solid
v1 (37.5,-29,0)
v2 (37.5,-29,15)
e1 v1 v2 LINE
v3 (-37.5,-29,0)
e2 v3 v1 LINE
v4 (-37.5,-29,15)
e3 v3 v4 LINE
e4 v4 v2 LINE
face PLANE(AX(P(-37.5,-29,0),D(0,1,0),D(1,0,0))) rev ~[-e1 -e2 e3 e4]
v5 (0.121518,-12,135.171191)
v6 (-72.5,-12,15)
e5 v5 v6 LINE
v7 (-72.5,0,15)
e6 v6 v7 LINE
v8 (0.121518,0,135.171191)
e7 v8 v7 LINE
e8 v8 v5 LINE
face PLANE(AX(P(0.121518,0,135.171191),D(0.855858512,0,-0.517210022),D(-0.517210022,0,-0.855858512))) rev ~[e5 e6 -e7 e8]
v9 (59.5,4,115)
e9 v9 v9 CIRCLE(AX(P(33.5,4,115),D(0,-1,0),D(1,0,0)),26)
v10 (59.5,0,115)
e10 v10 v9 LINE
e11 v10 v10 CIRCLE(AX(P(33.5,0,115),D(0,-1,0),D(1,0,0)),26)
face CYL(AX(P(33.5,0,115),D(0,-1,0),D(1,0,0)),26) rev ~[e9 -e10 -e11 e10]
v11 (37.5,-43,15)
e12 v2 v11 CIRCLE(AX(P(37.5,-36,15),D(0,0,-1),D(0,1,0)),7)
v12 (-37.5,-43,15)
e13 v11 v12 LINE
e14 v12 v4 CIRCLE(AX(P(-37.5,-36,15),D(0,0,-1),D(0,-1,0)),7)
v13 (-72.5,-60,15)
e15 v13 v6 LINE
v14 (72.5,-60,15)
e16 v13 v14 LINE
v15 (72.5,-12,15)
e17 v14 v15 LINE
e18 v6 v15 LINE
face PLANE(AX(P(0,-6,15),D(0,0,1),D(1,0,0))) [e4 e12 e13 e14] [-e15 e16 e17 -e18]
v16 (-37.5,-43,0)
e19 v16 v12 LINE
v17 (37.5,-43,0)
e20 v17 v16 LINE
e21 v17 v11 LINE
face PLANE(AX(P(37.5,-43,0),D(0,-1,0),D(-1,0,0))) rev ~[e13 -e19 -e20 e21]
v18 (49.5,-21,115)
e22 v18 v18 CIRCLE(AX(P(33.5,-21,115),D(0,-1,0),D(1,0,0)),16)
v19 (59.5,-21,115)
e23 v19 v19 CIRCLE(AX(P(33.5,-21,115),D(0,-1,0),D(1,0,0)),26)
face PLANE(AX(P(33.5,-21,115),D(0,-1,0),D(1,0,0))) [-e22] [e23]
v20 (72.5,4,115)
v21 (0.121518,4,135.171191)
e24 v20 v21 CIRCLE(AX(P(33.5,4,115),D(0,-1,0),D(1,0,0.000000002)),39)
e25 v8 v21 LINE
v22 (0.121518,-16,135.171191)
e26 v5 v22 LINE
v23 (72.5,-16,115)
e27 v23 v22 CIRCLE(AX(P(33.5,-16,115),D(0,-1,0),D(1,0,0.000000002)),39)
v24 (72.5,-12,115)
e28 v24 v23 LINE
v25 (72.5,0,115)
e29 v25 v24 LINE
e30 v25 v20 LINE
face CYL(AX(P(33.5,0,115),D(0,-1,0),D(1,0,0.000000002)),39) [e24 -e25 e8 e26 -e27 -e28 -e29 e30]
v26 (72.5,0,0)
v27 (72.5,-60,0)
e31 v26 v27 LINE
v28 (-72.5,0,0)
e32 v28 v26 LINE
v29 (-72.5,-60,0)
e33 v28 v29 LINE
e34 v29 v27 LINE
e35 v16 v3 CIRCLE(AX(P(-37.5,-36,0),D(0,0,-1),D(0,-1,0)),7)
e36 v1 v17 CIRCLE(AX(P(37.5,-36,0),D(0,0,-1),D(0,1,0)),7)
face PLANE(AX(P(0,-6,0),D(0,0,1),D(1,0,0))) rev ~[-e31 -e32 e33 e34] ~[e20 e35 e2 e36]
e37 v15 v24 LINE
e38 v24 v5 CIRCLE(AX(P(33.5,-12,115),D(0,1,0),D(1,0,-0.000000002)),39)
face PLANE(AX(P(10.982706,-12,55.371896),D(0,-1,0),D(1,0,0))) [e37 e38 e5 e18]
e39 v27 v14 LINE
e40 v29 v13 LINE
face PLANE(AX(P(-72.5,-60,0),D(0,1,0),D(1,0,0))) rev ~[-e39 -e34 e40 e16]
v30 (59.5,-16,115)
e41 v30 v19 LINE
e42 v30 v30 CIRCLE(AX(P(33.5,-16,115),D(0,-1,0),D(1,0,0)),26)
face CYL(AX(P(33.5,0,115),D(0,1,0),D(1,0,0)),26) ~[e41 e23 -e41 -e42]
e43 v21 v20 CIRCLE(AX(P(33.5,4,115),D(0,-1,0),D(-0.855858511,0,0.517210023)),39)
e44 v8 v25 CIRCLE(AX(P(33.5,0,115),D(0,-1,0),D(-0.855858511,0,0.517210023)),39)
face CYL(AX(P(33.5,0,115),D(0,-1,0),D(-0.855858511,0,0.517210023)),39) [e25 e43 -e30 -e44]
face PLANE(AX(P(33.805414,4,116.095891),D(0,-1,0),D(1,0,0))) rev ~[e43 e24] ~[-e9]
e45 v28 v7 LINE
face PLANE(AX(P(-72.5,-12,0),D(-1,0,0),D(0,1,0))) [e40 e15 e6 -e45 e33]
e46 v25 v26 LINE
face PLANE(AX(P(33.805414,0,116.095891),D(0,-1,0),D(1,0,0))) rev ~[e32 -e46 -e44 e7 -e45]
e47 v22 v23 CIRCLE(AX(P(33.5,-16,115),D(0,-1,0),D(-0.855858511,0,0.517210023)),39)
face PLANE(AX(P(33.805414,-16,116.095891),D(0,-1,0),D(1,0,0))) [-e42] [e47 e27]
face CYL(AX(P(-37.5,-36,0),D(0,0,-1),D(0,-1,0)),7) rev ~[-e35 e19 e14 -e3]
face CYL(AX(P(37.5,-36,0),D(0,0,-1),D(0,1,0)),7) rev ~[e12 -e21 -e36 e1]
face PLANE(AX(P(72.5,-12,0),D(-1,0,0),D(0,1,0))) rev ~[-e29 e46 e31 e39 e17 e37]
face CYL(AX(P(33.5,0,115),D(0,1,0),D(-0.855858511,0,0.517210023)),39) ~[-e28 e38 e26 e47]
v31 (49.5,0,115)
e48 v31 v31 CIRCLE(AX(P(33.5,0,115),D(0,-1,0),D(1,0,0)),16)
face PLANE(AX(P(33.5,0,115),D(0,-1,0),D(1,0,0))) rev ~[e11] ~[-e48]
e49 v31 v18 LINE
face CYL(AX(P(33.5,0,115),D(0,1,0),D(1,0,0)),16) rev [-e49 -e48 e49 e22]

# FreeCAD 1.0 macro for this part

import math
import FreeCAD as App
import Part
import Sketcher
Q = App.Units.Quantity


def add_polygon(sketch, points):
    """Adds a closed chain of lines whose ends are joined by coincident constraints."""
    first, n = sketch.GeometryCount, len(points)
    for a, b in zip(points, points[1:] + points[:1]):
        sketch.addGeometry(Part.LineSegment(App.Vector(*a, 0), App.Vector(*b, 0)), False)
    for i in range(n):
        sketch.addConstraint(Sketcher.Constraint("Coincident", first + i, 2, first + (i + 1) % n, 1))

doc = App.newDocument("Part")
body = doc.addObject("PartDesign::Body", "Body")

# Sketch on XY plane
sketch1 = body.newObject("Sketcher::SketchObject", "Sketch")
sketch1.AttachmentSupport = (doc.getObject("XY_Plane"), [""])
sketch1.MapMode = "FlatFace"
add_polygon(sketch1, [(-72.5, -12), (-72.5, -60), (72.5, -60), (72.5, -12)])  # lines 0-3
sketch1.addGeometry(Part.LineSegment(App.Vector(37.5, -43, 0), App.Vector(-37.5, -43, 0)), False)  # 4
sketch1.addGeometry(Part.ArcOfCircle(Part.Circle(App.Vector(-37.5, -36, 0), App.Vector(0, 0, 1), 7), math.radians(90), math.radians(270)), False)  # 5
sketch1.addGeometry(Part.LineSegment(App.Vector(-37.5, -29, 0), App.Vector(37.5, -29, 0)), False)  # 6
sketch1.addGeometry(Part.ArcOfCircle(Part.Circle(App.Vector(37.5, -36, 0), App.Vector(0, 0, 1), 7), math.radians(-90), math.radians(90)), False)  # 7
sketch1.addConstraint(Sketcher.Constraint("Tangent", 4, 2, 5, 2))
sketch1.addConstraint(Sketcher.Constraint("Tangent", 5, 1, 6, 1))
sketch1.addConstraint(Sketcher.Constraint("Tangent", 6, 2, 7, 2))
sketch1.addConstraint(Sketcher.Constraint("Tangent", 7, 1, 4, 1))
sketch1.addConstraint(Sketcher.Constraint("Vertical", 0))
sketch1.addConstraint(Sketcher.Constraint("Horizontal", 1))
sketch1.addConstraint(Sketcher.Constraint("Vertical", 2))
sketch1.addConstraint(Sketcher.Constraint("Horizontal", 3))
sketch1.addConstraint(Sketcher.Constraint("Horizontal", 4))
sketch1.addConstraint(Sketcher.Constraint("Horizontal", 6))
sketch1.addConstraint(Sketcher.Constraint("Radius", 5, Q("7 mm")))
sketch1.addConstraint(Sketcher.Constraint("DistanceX", 1, 1, 1, 2, Q("145 mm")))
sketch1.addConstraint(Sketcher.Constraint("DistanceX", 4, 2, 4, 1, Q("75 mm")))
sketch1.addConstraint(Sketcher.Constraint("DistanceY", 0, 2, 0, 1, Q("48 mm")))
sketch1.addConstraint(Sketcher.Constraint("DistanceY", 5, 3, -1, 1, Q("36 mm")))
sketch1.addConstraint(Sketcher.Constraint("DistanceY", 0, 2, -1, 1, Q("60 mm")))
sketch1.addConstraint(Sketcher.Constraint("DistanceX", 0, 2, 5, 3, Q("35 mm")))
sketch1.addConstraint(Sketcher.Constraint("DistanceX", 5, 3, -1, 1, Q("37.5 mm")))
pad1 = body.newObject("PartDesign::Pad", "Pad")
pad1.Profile = sketch1
pad1.Length = 15

# Sketch on XY plane
sketch2 = body.newObject("Sketcher::SketchObject", "Sketch001")
sketch2.AttachmentSupport = (doc.getObject("XY_Plane"), [""])
sketch2.MapMode = "FlatFace"
add_polygon(sketch2, [(-72.5, 0), (-72.5, -12), (72.5, -12), (72.5, 0)])  # lines 0-3
sketch2.addConstraint(Sketcher.Constraint("Vertical", 0))
sketch2.addConstraint(Sketcher.Constraint("Horizontal", 1))
sketch2.addConstraint(Sketcher.Constraint("Vertical", 2))
sketch2.addConstraint(Sketcher.Constraint("Horizontal", 3))
sketch2.addConstraint(Sketcher.Constraint("Symmetric", 2, 2, 3, 2, -1, 1))
sketch2.addConstraint(Sketcher.Constraint("DistanceX", 1, 1, 1, 2, Q("145 mm")))
sketch2.addConstraint(Sketcher.Constraint("DistanceY", 0, 2, 0, 1, Q("12 mm")))
pad2 = body.newObject("PartDesign::Pad", "Pad001")
pad2.Profile = sketch2
pad2.Length = 15

# Sketch on XZ plane
sketch3 = body.newObject("Sketcher::SketchObject", "Sketch002")
sketch3.AttachmentSupport = (doc.getObject("XZ_Plane"), [""])
sketch3.MapMode = "FlatFace"
sketch3.addGeometry(Part.LineSegment(App.Vector(-72.5, 15, 0), App.Vector(-72.5, 0, 0)), False)
sketch3.addGeometry(Part.LineSegment(App.Vector(-72.5, 0, 0), App.Vector(72.5, 0, 0)), False)
sketch3.addGeometry(Part.LineSegment(App.Vector(72.5, 0, 0), App.Vector(72.5, 115, 0)), False)
sketch3.addGeometry(Part.ArcOfCircle(Part.Circle(App.Vector(33.5, 115, 0), App.Vector(0, 0, 1), 39), math.radians(148.854709), math.radians(360)), False)
sketch3.addGeometry(Part.LineSegment(App.Vector(0.121518, 135.171191, 0), App.Vector(-72.5, 15, 0)), False)
sketch3.addConstraint(Sketcher.Constraint("Coincident", 0, 2, 1, 1))
sketch3.addConstraint(Sketcher.Constraint("Coincident", 1, 2, 2, 1))
sketch3.addConstraint(Sketcher.Constraint("Tangent", 2, 2, 3, 2))
sketch3.addConstraint(Sketcher.Constraint("Tangent", 3, 1, 4, 1))
sketch3.addConstraint(Sketcher.Constraint("Coincident", 4, 2, 0, 1))
sketch3.addConstraint(Sketcher.Constraint("Vertical", 0))
sketch3.addConstraint(Sketcher.Constraint("Horizontal", 1))
sketch3.addConstraint(Sketcher.Constraint("Vertical", 2))
sketch3.addConstraint(Sketcher.Constraint("Symmetric", 0, 2, 1, 2, -1, 1))
sketch3.addConstraint(Sketcher.Constraint("Radius", 3, Q("39 mm")))
sketch3.addConstraint(Sketcher.Constraint("DistanceX", 1, 1, 1, 2, Q("145 mm")))
sketch3.addConstraint(Sketcher.Constraint("DistanceY", 0, 2, 0, 1, Q("15 mm")))
sketch3.addConstraint(Sketcher.Constraint("DistanceY", 2, 1, 2, 2, Q("115 mm")))
pad3 = body.newObject("PartDesign::Pad", "Pad002")
pad3.Profile = sketch3
pad3.Length = 12

# Sketch on XZ plane
sketch4 = body.newObject("Sketcher::SketchObject", "Sketch003")
sketch4.AttachmentSupport = (doc.getObject("XZ_Plane"), [""])
sketch4.MapMode = "FlatFace"
sketch4.addGeometry(Part.ArcOfCircle(Part.Circle(App.Vector(33.5, 115, 0), App.Vector(0, 0, 1), 39), math.radians(148.854709), math.radians(360)), False)
sketch4.addGeometry(Part.ArcOfCircle(Part.Circle(App.Vector(33.5, 115, 0), App.Vector(0, 0, 1), 39), math.radians(0), math.radians(148.854709)), False)
sketch4.addGeometry(Part.Circle(App.Vector(33.5, 115, 0), App.Vector(0, 0, 1), 26), False)
sketch4.addConstraint(Sketcher.Constraint("Tangent", 0, 1, 1, 2))
sketch4.addConstraint(Sketcher.Constraint("Coincident", 1, 1, 0, 2))
sketch4.addConstraint(Sketcher.Constraint("Coincident", 2, 3, 0, 3))
sketch4.addConstraint(Sketcher.Constraint("Horizontal", 2, 3, 1, 1))
sketch4.addConstraint(Sketcher.Constraint("Diameter", 2, Q("52 mm")))
sketch4.addConstraint(Sketcher.Constraint("Radius", 0, Q("39 mm")))
sketch4.addConstraint(Sketcher.Constraint("DistanceY", -1, 1, 0, 3, Q("115 mm")))
sketch4.addConstraint(Sketcher.Constraint("DistanceX", -1, 1, 0, 3, Q("33.5 mm")))
sketch4.addConstraint(Sketcher.Constraint("DistanceX", -1, 1, 0, 1, Q("0.121518 mm")))
pad4 = body.newObject("PartDesign::Pad", "Pad003")
pad4.Profile = sketch4
pad4.Type = "TwoLengths"
pad4.Length = 16
pad4.Length2 = 4

# Sketch on XZ plane
sketch5 = body.newObject("Sketcher::SketchObject", "Sketch004")
sketch5.AttachmentSupport = (doc.getObject("XZ_Plane"), [""])
sketch5.MapMode = "FlatFace"
sketch5.addGeometry(Part.Circle(App.Vector(33.5, 115, 0), App.Vector(0, 0, 1), 26), False)
sketch5.addGeometry(Part.Circle(App.Vector(33.5, 115, 0), App.Vector(0, 0, 1), 16), False)
sketch5.addConstraint(Sketcher.Constraint("Coincident", 1, 3, 0, 3))
sketch5.addConstraint(Sketcher.Constraint("Diameter", 0, Q("52 mm")))
sketch5.addConstraint(Sketcher.Constraint("Diameter", 1, Q("32 mm")))
sketch5.addConstraint(Sketcher.Constraint("DistanceY", -1, 1, 0, 3, Q("115 mm")))
sketch5.addConstraint(Sketcher.Constraint("DistanceX", -1, 1, 0, 3, Q("33.5 mm")))
pad5 = body.newObject("PartDesign::Pad", "Pad004")
pad5.Profile = sketch5
pad5.Length = 21

doc.recompute()
